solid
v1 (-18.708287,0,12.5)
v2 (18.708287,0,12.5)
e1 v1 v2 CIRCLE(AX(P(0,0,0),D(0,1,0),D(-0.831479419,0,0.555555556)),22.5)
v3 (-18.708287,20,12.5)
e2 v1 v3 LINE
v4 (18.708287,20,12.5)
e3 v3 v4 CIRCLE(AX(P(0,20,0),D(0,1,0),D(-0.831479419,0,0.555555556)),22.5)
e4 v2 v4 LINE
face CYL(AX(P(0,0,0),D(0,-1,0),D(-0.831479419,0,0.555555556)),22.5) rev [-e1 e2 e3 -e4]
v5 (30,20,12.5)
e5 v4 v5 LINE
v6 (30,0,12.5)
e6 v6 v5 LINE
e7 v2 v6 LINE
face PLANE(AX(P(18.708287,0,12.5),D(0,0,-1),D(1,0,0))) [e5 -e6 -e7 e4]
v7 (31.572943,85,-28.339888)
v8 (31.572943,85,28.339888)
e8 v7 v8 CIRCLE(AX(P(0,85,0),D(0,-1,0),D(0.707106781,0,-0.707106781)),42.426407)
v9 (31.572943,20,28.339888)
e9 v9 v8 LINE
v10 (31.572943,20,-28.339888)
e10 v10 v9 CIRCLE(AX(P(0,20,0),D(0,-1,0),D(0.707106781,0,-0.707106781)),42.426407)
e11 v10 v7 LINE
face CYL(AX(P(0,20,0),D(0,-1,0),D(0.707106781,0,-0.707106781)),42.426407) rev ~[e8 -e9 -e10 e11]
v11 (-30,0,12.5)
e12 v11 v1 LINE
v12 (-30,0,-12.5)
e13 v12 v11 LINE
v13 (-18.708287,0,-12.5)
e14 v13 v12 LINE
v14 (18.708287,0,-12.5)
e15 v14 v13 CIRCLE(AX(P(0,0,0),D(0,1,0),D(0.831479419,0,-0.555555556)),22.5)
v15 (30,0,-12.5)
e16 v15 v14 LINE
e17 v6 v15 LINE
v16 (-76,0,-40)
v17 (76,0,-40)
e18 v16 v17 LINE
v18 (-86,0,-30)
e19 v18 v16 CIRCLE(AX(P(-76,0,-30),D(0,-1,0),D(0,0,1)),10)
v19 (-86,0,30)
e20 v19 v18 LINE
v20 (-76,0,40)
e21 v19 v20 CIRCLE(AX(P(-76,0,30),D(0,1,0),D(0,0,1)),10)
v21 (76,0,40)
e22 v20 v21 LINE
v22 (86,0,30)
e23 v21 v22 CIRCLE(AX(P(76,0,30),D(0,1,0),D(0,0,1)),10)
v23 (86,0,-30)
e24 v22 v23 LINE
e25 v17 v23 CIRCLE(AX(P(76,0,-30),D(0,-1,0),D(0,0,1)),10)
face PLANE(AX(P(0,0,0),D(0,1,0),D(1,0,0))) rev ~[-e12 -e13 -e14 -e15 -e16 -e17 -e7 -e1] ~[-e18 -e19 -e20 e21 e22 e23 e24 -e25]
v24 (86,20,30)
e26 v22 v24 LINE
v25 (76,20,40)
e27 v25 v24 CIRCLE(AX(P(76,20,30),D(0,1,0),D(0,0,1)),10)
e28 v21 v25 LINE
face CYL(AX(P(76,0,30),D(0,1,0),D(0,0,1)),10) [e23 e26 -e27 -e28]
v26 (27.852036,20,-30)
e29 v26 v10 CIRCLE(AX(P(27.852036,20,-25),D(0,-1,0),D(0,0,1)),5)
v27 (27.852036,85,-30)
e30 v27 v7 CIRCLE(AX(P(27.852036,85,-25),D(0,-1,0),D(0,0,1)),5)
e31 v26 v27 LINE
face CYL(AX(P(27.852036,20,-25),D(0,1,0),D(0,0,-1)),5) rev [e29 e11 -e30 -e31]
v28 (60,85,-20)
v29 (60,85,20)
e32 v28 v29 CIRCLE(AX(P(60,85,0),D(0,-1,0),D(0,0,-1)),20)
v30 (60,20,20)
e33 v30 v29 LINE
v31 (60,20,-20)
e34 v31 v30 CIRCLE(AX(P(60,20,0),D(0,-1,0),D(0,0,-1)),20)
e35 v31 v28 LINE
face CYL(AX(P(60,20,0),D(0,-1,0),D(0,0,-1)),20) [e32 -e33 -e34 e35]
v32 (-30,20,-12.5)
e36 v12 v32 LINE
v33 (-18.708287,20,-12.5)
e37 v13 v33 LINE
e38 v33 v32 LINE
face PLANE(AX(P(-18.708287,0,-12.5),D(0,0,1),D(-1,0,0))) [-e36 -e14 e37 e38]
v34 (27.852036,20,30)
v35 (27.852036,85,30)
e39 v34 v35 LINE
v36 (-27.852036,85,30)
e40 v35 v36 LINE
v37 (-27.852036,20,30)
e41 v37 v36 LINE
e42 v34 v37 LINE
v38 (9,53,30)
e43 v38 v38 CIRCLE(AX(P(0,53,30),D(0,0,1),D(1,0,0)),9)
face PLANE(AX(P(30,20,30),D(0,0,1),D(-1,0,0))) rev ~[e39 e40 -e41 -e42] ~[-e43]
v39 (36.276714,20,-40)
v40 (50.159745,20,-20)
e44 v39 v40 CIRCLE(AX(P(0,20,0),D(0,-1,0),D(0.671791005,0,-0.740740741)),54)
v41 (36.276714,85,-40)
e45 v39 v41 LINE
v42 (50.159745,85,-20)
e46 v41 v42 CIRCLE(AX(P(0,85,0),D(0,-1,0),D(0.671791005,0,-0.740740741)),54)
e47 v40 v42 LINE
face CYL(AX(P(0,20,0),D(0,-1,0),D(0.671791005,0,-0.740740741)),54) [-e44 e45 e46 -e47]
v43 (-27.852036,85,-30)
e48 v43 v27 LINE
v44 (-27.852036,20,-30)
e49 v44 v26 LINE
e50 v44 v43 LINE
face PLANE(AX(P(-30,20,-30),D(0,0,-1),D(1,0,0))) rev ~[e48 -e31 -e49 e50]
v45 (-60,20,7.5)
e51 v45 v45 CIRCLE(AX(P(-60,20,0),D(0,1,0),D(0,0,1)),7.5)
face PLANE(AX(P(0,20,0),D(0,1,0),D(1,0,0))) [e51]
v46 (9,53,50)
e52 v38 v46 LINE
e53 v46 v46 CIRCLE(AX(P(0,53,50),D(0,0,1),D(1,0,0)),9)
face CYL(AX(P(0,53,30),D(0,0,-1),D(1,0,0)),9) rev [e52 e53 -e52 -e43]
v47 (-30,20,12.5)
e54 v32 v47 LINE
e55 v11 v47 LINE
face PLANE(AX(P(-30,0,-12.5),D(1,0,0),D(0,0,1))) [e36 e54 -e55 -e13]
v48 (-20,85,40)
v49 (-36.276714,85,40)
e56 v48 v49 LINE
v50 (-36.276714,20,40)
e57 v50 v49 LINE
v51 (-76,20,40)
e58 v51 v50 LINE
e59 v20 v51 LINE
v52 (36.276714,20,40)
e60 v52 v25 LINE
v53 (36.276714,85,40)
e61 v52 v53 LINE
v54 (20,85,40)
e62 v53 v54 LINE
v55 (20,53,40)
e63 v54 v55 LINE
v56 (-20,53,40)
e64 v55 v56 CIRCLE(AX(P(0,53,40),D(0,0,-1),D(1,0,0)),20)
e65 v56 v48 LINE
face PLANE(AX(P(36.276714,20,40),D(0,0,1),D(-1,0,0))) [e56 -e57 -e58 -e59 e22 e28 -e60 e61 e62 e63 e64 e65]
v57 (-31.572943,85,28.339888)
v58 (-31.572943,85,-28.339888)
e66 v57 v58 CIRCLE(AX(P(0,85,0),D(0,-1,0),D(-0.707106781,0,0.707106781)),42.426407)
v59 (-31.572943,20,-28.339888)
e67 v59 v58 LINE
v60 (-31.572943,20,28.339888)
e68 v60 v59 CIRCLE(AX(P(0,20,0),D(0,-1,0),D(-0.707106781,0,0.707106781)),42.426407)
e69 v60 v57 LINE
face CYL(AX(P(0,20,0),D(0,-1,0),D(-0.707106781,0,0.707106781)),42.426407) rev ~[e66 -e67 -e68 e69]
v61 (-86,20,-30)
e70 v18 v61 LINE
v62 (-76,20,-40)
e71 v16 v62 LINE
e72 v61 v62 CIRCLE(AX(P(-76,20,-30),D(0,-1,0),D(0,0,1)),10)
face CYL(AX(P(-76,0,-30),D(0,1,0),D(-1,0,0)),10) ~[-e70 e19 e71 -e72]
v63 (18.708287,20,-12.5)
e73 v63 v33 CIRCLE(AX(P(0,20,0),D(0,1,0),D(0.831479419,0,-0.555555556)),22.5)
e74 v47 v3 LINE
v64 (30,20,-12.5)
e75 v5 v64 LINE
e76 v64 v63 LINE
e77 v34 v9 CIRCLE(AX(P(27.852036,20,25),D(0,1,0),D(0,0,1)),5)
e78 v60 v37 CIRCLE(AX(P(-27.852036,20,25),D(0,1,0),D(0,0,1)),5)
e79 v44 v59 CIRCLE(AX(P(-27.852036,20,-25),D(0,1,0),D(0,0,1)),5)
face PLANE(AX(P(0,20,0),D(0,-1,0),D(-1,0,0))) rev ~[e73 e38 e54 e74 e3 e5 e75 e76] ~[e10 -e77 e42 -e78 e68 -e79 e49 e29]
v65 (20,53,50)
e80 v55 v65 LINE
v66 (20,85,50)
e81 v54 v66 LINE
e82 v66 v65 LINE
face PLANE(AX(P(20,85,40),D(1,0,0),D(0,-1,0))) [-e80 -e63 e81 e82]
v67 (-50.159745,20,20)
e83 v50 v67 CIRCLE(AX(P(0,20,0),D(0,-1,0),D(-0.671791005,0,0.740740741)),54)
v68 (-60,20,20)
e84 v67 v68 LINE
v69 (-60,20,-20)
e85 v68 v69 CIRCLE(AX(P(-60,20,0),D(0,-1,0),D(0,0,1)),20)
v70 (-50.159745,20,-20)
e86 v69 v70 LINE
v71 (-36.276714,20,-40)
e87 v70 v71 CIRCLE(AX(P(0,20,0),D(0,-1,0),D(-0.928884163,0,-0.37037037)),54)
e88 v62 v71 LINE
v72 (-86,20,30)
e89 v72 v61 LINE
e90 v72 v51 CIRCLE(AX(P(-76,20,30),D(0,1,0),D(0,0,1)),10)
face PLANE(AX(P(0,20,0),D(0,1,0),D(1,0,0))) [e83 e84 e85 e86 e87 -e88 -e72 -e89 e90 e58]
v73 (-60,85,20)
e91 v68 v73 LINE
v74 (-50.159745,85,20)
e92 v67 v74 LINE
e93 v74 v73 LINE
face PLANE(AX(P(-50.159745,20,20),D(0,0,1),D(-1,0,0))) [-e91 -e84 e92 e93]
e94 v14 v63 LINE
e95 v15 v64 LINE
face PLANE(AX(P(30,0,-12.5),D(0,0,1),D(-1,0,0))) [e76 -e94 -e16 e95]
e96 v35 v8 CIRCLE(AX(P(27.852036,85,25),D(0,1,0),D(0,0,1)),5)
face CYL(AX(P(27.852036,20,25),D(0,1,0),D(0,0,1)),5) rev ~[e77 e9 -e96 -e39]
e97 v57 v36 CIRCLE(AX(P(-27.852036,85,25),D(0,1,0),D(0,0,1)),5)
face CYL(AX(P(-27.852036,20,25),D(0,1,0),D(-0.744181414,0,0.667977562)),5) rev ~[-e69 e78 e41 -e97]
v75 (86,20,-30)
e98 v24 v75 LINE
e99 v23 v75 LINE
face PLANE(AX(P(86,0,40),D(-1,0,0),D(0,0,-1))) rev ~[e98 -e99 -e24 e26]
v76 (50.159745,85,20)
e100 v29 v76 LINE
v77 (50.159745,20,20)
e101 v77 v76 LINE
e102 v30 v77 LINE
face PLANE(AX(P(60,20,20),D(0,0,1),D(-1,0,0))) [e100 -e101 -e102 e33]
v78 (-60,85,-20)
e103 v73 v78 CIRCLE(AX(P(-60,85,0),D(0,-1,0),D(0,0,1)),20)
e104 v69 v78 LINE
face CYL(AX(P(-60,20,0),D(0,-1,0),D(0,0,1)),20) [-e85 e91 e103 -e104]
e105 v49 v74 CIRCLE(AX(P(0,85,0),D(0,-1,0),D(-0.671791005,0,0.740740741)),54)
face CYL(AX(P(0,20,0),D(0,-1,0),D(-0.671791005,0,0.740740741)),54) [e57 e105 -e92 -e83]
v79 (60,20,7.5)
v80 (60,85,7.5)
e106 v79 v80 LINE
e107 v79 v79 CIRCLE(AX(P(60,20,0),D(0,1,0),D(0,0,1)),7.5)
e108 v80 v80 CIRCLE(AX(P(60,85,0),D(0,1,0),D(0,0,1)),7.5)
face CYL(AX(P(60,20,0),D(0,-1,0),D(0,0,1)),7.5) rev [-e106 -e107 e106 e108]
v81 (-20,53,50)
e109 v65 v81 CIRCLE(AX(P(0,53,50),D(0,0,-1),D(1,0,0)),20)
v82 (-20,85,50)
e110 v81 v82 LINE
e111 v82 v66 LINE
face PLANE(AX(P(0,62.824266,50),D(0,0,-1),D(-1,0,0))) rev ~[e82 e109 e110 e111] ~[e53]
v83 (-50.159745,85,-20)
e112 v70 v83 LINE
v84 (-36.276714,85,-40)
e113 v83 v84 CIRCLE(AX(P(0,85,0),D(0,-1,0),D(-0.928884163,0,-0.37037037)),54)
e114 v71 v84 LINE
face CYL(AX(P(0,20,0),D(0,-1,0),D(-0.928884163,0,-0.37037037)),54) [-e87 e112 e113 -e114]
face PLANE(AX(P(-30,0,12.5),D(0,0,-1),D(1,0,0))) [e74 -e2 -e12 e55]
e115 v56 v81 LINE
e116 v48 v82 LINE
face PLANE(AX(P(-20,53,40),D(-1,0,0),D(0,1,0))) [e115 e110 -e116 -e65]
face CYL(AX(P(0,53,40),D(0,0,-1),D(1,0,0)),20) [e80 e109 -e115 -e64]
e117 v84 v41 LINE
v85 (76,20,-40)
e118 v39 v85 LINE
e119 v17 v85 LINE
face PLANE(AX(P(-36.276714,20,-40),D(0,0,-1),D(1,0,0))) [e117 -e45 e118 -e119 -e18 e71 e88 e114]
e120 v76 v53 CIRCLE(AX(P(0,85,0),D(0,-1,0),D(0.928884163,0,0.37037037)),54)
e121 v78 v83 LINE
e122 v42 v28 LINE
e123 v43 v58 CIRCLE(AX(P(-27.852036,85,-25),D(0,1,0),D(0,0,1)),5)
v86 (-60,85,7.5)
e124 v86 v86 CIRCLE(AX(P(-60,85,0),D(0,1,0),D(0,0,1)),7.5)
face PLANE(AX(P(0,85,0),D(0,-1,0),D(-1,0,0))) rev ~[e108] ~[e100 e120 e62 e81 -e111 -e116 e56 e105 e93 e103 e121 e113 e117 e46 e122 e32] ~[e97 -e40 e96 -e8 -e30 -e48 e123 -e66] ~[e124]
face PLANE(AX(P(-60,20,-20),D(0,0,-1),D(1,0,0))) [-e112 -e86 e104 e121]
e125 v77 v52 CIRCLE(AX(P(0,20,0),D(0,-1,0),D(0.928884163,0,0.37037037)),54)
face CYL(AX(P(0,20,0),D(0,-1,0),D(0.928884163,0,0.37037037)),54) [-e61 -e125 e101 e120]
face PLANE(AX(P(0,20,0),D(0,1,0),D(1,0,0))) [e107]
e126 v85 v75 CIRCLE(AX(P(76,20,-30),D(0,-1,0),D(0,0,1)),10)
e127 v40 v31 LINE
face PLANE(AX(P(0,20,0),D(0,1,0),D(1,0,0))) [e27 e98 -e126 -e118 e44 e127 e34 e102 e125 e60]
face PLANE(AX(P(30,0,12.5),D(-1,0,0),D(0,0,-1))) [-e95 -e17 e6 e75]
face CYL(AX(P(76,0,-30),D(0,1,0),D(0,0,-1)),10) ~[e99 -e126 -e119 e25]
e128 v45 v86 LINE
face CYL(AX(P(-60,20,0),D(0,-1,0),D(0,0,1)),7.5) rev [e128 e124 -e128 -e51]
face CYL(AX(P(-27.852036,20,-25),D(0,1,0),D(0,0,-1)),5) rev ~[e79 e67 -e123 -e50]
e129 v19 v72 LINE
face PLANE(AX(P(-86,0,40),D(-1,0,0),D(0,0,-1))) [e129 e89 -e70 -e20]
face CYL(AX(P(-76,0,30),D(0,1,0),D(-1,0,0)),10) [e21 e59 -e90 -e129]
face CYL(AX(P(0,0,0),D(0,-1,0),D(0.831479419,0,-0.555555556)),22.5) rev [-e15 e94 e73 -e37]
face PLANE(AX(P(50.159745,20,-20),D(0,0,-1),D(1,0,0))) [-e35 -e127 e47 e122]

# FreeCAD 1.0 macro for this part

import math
import FreeCAD as App
import Part
import Sketcher

V = App.Vector
Q = App.Units.Quantity


def edges_at(feature, points):
    """Names of the edges that pass closest to the given points."""
    edges = feature.Shape.Edges
    near = lambda p: min(range(len(edges)), key=lambda i: edges[i].distToShape(Part.Vertex(*p))[0])
    return sorted({f"Edge{near(p) + 1}" for p in points})


def add_polygon(sketch, points):
    """Adds a closed chain of lines whose ends are joined by coincident constraints."""
    first, n = sketch.GeometryCount, len(points)
    for a, b in zip(points, points[1:] + points[:1]):
        sketch.addGeometry(Part.LineSegment(App.Vector(*a, 0), App.Vector(*b, 0)), False)
    for i in range(n):
        sketch.addConstraint(Sketcher.Constraint("Coincident", first + i, 2, first + (i + 1) % n, 1))

doc = App.newDocument("Part")
body = doc.addObject("PartDesign::Body", "Body")

# Sketch on XZ plane
sketch1 = body.newObject("Sketcher::SketchObject", "Sketch")
sketch1.AttachmentSupport = (doc.getObject("XZ_Plane"), [""])
sketch1.MapMode = "FlatFace"
add_polygon(sketch1, [(-86, -40), (-86, 40), (86, 40), (86, -40)])  # lines 0-3
sketch1.addGeometry(Part.LineSegment(V(-19, 12, 0), V(-30, 12, 0)), False)  # 4
sketch1.addGeometry(Part.LineSegment(V(-30, 12, 0), V(-30, -12, 0)), False)  # 5
sketch1.addGeometry(Part.LineSegment(V(-30, -12, 0), V(-19, -12, 0)), False)  # 6
sketch1.addGeometry(Part.ArcOfCircle(Part.Circle(V(0, 0, 0), V(0, 0, 1), 22), math.radians(-146), math.radians(-34)), False)  # 7
sketch1.addGeometry(Part.LineSegment(V(19, -12, 0), V(30, -12, 0)), False)  # 8
sketch1.addGeometry(Part.LineSegment(V(30, -12, 0), V(30, 12, 0)), False)  # 9
sketch1.addGeometry(Part.LineSegment(V(30, 12, 0), V(19, 12, 0)), False)  # 10
sketch1.addGeometry(Part.ArcOfCircle(Part.Circle(V(0, 0, 0), V(0, 0, 1), 22), math.radians(34), math.radians(146)), False)  # 11
sketch1.addConstraint([
    Sketcher.Constraint("Coincident", 4, 2, 5, 1),
    Sketcher.Constraint("Coincident", 5, 2, 6, 1),
    Sketcher.Constraint("Coincident", 6, 2, 7, 1),
    Sketcher.Constraint("Coincident", 7, 2, 8, 1),
    Sketcher.Constraint("Coincident", 8, 2, 9, 1),
    Sketcher.Constraint("Coincident", 9, 2, 10, 1),
    Sketcher.Constraint("Coincident", 10, 2, 11, 1),
    Sketcher.Constraint("Coincident", 11, 2, 4, 1),
    Sketcher.Constraint("Vertical", 0),
    Sketcher.Constraint("Horizontal", 1),
    Sketcher.Constraint("Vertical", 2),
    Sketcher.Constraint("Horizontal", 3),
    Sketcher.Constraint("Horizontal", 4),
    Sketcher.Constraint("Vertical", 5),
    Sketcher.Constraint("Horizontal", 6),
    Sketcher.Constraint("Horizontal", 8),
    Sketcher.Constraint("Vertical", 9),
    Sketcher.Constraint("Horizontal", 10),
    Sketcher.Constraint("Coincident", 7, 3, -1, 1),
    Sketcher.Constraint("Coincident", 11, 3, -1, 1),
    Sketcher.Constraint("Equal", 7, 11),
    Sketcher.Constraint("Symmetric", 0, 2, 2, 2, -1, 1),
    Sketcher.Constraint("Symmetric", 4, 2, 8, 2, -1, 1),
    Sketcher.Constraint("Horizontal", 6, 2, 7, 2),
    Sketcher.Constraint("Horizontal", 4, 2, 9, 2),
    Sketcher.Constraint("Radius", 7, Q("22.5 mm")),
    Sketcher.Constraint("DistanceX", 1, 1, 1, 2, Q("172 mm")),
    Sketcher.Constraint("DistanceY", 0, 1, 0, 2, Q("80 mm")),
    Sketcher.Constraint("DistanceY", 5, 2, 5, 1, Q("25 mm")),
    Sketcher.Constraint("DistanceX", 4, 2, -1, 1, Q("30 mm")),
])
pad1 = body.newObject("PartDesign::Pad", "Pad")
pad1.Profile = sketch1
pad1.Length = 20
pad1.Reversed = True
doc.recompute()

fillet = body.newObject("PartDesign::Fillet", "Fillet")
fillet.Base = (pad1, edges_at(pad1, [
    (86, 10, 40),
    (-86, 10, 40),
    (-86, 10, -40),
    (86, 10, -40),
]))
fillet.Radius = 10

# Sketch on XZ plane
sketch2 = body.newObject("Sketcher::SketchObject", "Sketch001")
sketch2.AttachmentSupport = (doc.getObject("XZ_Plane"), [""])
sketch2.MapMode = "FlatFace"
sketch2.AttachmentOffset = App.Placement(V(0, 0, -20), App.Rotation())
sketch2.addGeometry([
    Part.LineSegment(V(36, -40, 0), V(-36, -40, 0)),  # 0
    Part.ArcOfCircle(Part.Circle(V(0, 0, 0), V(0, 0, 1), 54), math.radians(-158), math.radians(-132)),  # 1
    Part.LineSegment(V(-50, -20, 0), V(-60, -20, 0)),  # 2
    Part.ArcOfCircle(Part.Circle(V(-60, 0, 0), V(0, 0, 1), 20), math.radians(90), math.radians(270)),  # 3
    Part.LineSegment(V(-60, 20, 0), V(-50, 20, 0)),  # 4
    Part.ArcOfCircle(Part.Circle(V(0, 0, 0), V(0, 0, 1), 54), math.radians(132), math.radians(158)),  # 5
    Part.LineSegment(V(-36, 40, 0), V(36, 40, 0)),  # 6
    Part.ArcOfCircle(Part.Circle(V(0, 0, 0), V(0, 0, 1), 54), math.radians(22), math.radians(48)),  # 7
    Part.LineSegment(V(50, 20, 0), V(60, 20, 0)),  # 8
    Part.ArcOfCircle(Part.Circle(V(60, 0, 0), V(0, 0, 1), 20), math.radians(-90), math.radians(90)),  # 9
    Part.LineSegment(V(60, -20, 0), V(50, -20, 0)),  # 10
    Part.ArcOfCircle(Part.Circle(V(0, 0, 0), V(0, 0, 1), 54), math.radians(-48), math.radians(-22)),  # 11
    Part.Circle(V(60, 0, 0), V(0, 0, 1), 8),  # 12
    Part.Circle(V(-60, 0, 0), V(0, 0, 1), 8),  # 13
], False)
sketch2.addConstraint([
    Sketcher.Constraint("Coincident", 0, 2, 1, 2),
    Sketcher.Constraint("Coincident", 1, 1, 2, 1),
    Sketcher.Constraint("Tangent", 2, 2, 3, 2),
    Sketcher.Constraint("Tangent", 3, 1, 4, 1),
    Sketcher.Constraint("Coincident", 4, 2, 5, 2),
    Sketcher.Constraint("Coincident", 5, 1, 6, 1),
    Sketcher.Constraint("Coincident", 6, 2, 7, 2),
    Sketcher.Constraint("Coincident", 7, 1, 8, 1),
    Sketcher.Constraint("Tangent", 8, 2, 9, 2),
    Sketcher.Constraint("Tangent", 9, 1, 10, 1),
    Sketcher.Constraint("Coincident", 10, 2, 11, 2),
    Sketcher.Constraint("Coincident", 11, 1, 0, 1),
    Sketcher.Constraint("Horizontal", 0),
    Sketcher.Constraint("Horizontal", 2),
    Sketcher.Constraint("Horizontal", 4),
    Sketcher.Constraint("Horizontal", 6),
    Sketcher.Constraint("Horizontal", 8),
    Sketcher.Constraint("Horizontal", 10),
    Sketcher.Constraint("Coincident", 1, 3, -1, 1),
    Sketcher.Constraint("Coincident", 5, 3, -1, 1),
    Sketcher.Constraint("Coincident", 7, 3, -1, 1),
    Sketcher.Constraint("Coincident", 11, 3, -1, 1),
    Sketcher.Constraint("Coincident", 12, 3, 9, 3),
    Sketcher.Constraint("Coincident", 13, 3, 3, 3),
    Sketcher.Constraint("Equal", 1, 5),
    Sketcher.Constraint("Equal", 5, 7),
    Sketcher.Constraint("Equal", 3, 9),
    Sketcher.Constraint("Equal", 7, 11),
    Sketcher.Constraint("Equal", 12, 13),
    Sketcher.Constraint("Symmetric", 3, 3, 9, 3, -1, 1),
    Sketcher.Constraint("PointOnObject", 3, 3, -1),
    Sketcher.Constraint("Vertical", 0, 2, 5, 1),
    Sketcher.Constraint("Diameter", 12, Q("15 mm")),
    Sketcher.Constraint("Radius", 1, Q("54 mm")),
    Sketcher.Constraint("Radius", 3, Q("20 mm")),
    Sketcher.Constraint("DistanceX", 3, 3, -1, 1, Q("60 mm")),
    Sketcher.Constraint("DistanceY", 0, 2, -1, 1, Q("40 mm")),
])
pad2 = body.newObject("PartDesign::Pad", "Pad001")
pad2.Profile = sketch2
pad2.Length = 65
pad2.Reversed = True

# Sketch on XZ plane
sketch3 = body.newObject("Sketcher::SketchObject", "Sketch002")
sketch3.AttachmentSupport = (doc.getObject("XZ_Plane"), [""])
sketch3.MapMode = "FlatFace"
sketch3.AttachmentOffset = App.Placement(V(0, 0, -20), App.Rotation())
sketch3.addGeometry([
    Part.LineSegment(V(30, -30, 0), V(-30, -30, 0)),
    Part.ArcOfCircle(Part.Circle(V(0, 0, 0), V(0, 0, 1), 42), math.radians(135), math.radians(225)),
    Part.LineSegment(V(-30, 30, 0), V(30, 30, 0)),
    Part.ArcOfCircle(Part.Circle(V(0, 0, 0), V(0, 0, 1), 42), math.radians(-45), math.radians(45)),
], False)
sketch3.addConstraint([
    Sketcher.Constraint("Coincident", 0, 2, 1, 2),
    Sketcher.Constraint("Coincident", 1, 1, 2, 1),
    Sketcher.Constraint("Coincident", 2, 2, 3, 2),
    Sketcher.Constraint("Coincident", 3, 1, 0, 1),
    Sketcher.Constraint("Horizontal", 0),
    Sketcher.Constraint("Horizontal", 2),
    Sketcher.Constraint("Coincident", 1, 3, -1, 1),
    Sketcher.Constraint("Coincident", 3, 3, -1, 1),
    Sketcher.Constraint("Equal", 1, 3),
    Sketcher.Constraint("Vertical", 0, 2, 1, 1),
    Sketcher.Constraint("DistanceX", 0, 2, 0, 1, Q("60 mm")),
    Sketcher.Constraint("DistanceY", 0, 2, -1, 1, Q("30 mm")),
])
pocket1 = body.newObject("PartDesign::Pocket", "Pocket")
pocket1.Profile = sketch3
pocket1.Length = 65

# Sketch on XY plane
sketch4 = body.newObject("Sketcher::SketchObject", "Sketch003")
sketch4.AttachmentSupport = (doc.getObject("XY_Plane"), [""])
sketch4.MapMode = "FlatFace"
sketch4.AttachmentOffset = App.Placement(V(0, 0, 40), App.Rotation())
sketch4.addGeometry([
    Part.LineSegment(V(-20, 85, 0), V(-20, 53, 0)),
    Part.ArcOfCircle(Part.Circle(V(0, 53, 0), V(0, 0, 1), 20), math.radians(180), math.radians(360)),
    Part.LineSegment(V(20, 53, 0), V(20, 85, 0)),
    Part.LineSegment(V(20, 85, 0), V(-20, 85, 0)),
], False)
sketch4.addConstraint([
    Sketcher.Constraint("Tangent", 0, 2, 1, 1),
    Sketcher.Constraint("Tangent", 1, 2, 2, 1),
    Sketcher.Constraint("Coincident", 2, 2, 3, 1),
    Sketcher.Constraint("Coincident", 3, 2, 0, 1),
    Sketcher.Constraint("Vertical", 0),
    Sketcher.Constraint("Vertical", 2),
    Sketcher.Constraint("Horizontal", 3),
    Sketcher.Constraint("PointOnObject", 1, 3, -2),
    Sketcher.Constraint("Radius", 1, Q("20 mm")),
    Sketcher.Constraint("DistanceY", 0, 2, 0, 1, Q("32 mm")),
    Sketcher.Constraint("DistanceY", -1, 1, 1, 3, Q("53 mm")),
])
pad3 = body.newObject("PartDesign::Pad", "Pad002")
pad3.Profile = sketch4
pad3.Length = 10

# Sketch on XY plane
sketch5 = body.newObject("Sketcher::SketchObject", "Sketch004")
sketch5.AttachmentSupport = (doc.getObject("XY_Plane"), [""])
sketch5.MapMode = "FlatFace"
sketch5.AttachmentOffset = App.Placement(V(0, 0, 40), App.Rotation())
sketch5.addGeometry(Part.Circle(V(0, 53, 0), V(0, 0, 1), 9), False)
sketch5.addConstraint([
    Sketcher.Constraint("PointOnObject", 0, 3, -2),
    Sketcher.Constraint("Diameter", 0, Q("18 mm")),
    Sketcher.Constraint("DistanceY", -1, 1, 0, 3, Q("53 mm")),
])
pocket2 = body.newObject("PartDesign::Pocket", "Pocket001")
pocket2.Profile = sketch5
pocket2.Type = "TwoLengths"
pocket2.Length = 10
pocket2.Length2 = 10
pocket2.Reversed = True
doc.recompute()

fillet2 = body.newObject("PartDesign::Fillet", "Fillet001")
fillet2.Base = (pocket2, edges_at(pocket2, [
    (30, 52.5, 30),
    (30, 52.5, -30),
    (-30, 52.5, -30),
    (-30, 52.5, 30),
]))
fillet2.Radius = 5

doc.recompute()
